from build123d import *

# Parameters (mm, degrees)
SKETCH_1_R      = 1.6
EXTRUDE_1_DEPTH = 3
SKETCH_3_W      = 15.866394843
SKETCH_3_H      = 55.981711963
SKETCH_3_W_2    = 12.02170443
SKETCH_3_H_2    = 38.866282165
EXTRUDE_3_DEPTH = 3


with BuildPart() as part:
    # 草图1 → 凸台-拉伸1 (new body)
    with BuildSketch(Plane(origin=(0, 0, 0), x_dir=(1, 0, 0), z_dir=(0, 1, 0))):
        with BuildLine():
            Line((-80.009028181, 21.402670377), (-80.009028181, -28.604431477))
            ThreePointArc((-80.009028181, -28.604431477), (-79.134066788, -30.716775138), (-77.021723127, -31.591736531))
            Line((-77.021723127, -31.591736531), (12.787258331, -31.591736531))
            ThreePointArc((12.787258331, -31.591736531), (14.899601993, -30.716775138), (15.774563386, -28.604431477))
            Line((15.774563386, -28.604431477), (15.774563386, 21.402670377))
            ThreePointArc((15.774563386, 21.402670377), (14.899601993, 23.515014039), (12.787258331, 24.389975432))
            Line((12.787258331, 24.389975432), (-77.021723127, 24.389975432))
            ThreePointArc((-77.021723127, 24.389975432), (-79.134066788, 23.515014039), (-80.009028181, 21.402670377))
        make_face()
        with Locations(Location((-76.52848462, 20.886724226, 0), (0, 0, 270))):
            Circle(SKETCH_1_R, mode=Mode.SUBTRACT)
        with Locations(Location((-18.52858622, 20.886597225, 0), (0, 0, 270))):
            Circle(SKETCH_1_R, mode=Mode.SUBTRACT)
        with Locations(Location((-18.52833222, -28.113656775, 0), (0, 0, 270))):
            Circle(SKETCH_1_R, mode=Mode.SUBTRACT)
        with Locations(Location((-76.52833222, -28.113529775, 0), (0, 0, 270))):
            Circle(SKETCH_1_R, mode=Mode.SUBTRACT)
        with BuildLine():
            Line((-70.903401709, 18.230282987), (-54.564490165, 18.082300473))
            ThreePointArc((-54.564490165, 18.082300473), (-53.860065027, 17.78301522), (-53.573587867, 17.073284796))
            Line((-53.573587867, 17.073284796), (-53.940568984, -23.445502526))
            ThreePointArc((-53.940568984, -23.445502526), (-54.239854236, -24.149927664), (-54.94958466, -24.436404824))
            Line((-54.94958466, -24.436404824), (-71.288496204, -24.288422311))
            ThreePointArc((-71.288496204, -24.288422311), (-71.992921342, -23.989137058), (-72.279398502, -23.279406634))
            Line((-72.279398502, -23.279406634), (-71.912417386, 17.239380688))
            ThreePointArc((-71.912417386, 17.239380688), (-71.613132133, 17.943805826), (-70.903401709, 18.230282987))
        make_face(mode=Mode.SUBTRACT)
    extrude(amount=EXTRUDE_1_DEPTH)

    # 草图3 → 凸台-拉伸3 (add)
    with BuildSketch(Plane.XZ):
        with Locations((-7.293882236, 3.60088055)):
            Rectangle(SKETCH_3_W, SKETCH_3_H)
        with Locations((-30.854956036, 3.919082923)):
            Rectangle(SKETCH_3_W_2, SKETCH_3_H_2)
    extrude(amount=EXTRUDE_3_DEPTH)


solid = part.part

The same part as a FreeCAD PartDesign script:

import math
import FreeCAD as App
import Part
import Sketcher

V = App.Vector
Q = App.Units.Quantity

doc = App.newDocument("Part")
body = doc.addObject("PartDesign::Body", "Body")

sketch1 = doc.addObject("Sketcher::SketchObject", "Sketch")
body.addObject(sketch1)
sketch1.AttachmentSupport = (doc.XZ_Plane, [""])
sketch1.MapMode = "FlatFace"
sketch1.addGeometry([
    Part.LineSegment(V(-80.009028, -21.40267, 0), V(-80.009028, 28.604431, 0)),
    Part.ArcOfCircle(Part.Circle(V(-77.021723, 28.604431, 0), V(0, 0, 1), 2.987305), math.radians(90), math.radians(180)),
    Part.LineSegment(V(-77.021723, 31.591737, 0), V(12.787258, 31.591737, 0)),
    Part.ArcOfCircle(Part.Circle(V(12.787258, 28.604431, 0), V(0, 0, 1), 2.987305), math.radians(0), math.radians(90)),
    Part.LineSegment(V(15.774563, 28.604431, 0), V(15.774563, -21.40267, 0)),
    Part.ArcOfCircle(Part.Circle(V(12.787258, -21.40267, 0), V(0, 0, 1), 2.987305), math.radians(-90), math.radians(0)),
    Part.LineSegment(V(12.787258, -24.389975, 0), V(-77.021723, -24.389975, 0)),
    Part.ArcOfCircle(Part.Circle(V(-77.021723, -21.40267, 0), V(0, 0, 1), 2.987305), math.radians(180), math.radians(270)),
    Part.Circle(V(-76.528332, 28.11353, 0), V(0, 0, 1), 1.6),
    Part.Circle(V(-18.528332, 28.113657, 0), V(0, 0, 1), 1.6),
    Part.ArcOfCircle(Part.Circle(V(-70.912458, -17.230324, 0), V(0, 0, 1), 1), math.radians(-179.481083), math.radians(-89.481083)),
    Part.LineSegment(V(-70.903402, -18.230283, 0), V(-54.56449, -18.0823, 0)),
    Part.ArcOfCircle(Part.Circle(V(-54.573547, -17.082341, 0), V(0, 0, 1), 1), math.radians(-89.481083), math.radians(0.518917)),
    Part.LineSegment(V(-53.573588, -17.073285, 0), V(-53.940569, 23.445503, 0)),
    Part.ArcOfCircle(Part.Circle(V(-54.940528, 23.436446, 0), V(0, 0, 1), 1), math.radians(0.518917), math.radians(90.518917)),
    Part.LineSegment(V(-54.949585, 24.436405, 0), V(-71.288496, 24.288422, 0)),
    Part.ArcOfCircle(Part.Circle(V(-71.27944, 23.288463, 0), V(0, 0, 1), 1), math.radians(90.518917), math.radians(180.518917)),
    Part.LineSegment(V(-72.279399, 23.279407, 0), V(-71.912417, -17.239381, 0)),
    Part.Circle(V(-76.528485, -20.886724, 0), V(0, 0, 1), 1.6),
    Part.Circle(V(-18.528586, -20.886597, 0), V(0, 0, 1), 1.6),
], False)
sketch1.addConstraint([
    Sketcher.Constraint("Coincident", 0, 2, 1, 2),
    Sketcher.Constraint("Coincident", 1, 1, 2, 1),
    Sketcher.Constraint("Coincident", 2, 2, 3, 2),
    Sketcher.Constraint("Coincident", 3, 1, 4, 1),
    Sketcher.Constraint("Coincident", 4, 2, 5, 2),
    Sketcher.Constraint("Coincident", 5, 1, 6, 1),
    Sketcher.Constraint("Coincident", 6, 2, 7, 2),
    Sketcher.Constraint("Coincident", 7, 1, 0, 1),
    Sketcher.Constraint("Coincident", 10, 2, 11, 1),
    Sketcher.Constraint("Coincident", 11, 2, 12, 1),
    Sketcher.Constraint("Coincident", 12, 2, 13, 1),
    Sketcher.Constraint("Coincident", 13, 2, 14, 1),
    Sketcher.Constraint("Coincident", 14, 2, 15, 1),
    Sketcher.Constraint("Coincident", 15, 2, 16, 1),
    Sketcher.Constraint("Coincident", 16, 2, 17, 1),
    Sketcher.Constraint("Coincident", 17, 2, 10, 1),
    Sketcher.Constraint("Vertical", 0),
    Sketcher.Constraint("Horizontal", 2),
    Sketcher.Constraint("Vertical", 4),
    Sketcher.Constraint("Horizontal", 6),
    Sketcher.Constraint("Radius", 10, Q("1 mm")),
    Sketcher.Constraint("Radius", 12, Q("1 mm")),
    Sketcher.Constraint("Radius", 14, Q("1 mm")),
    Sketcher.Constraint("Radius", 16, Q("1 mm")),
    Sketcher.Constraint("Diameter", 8, Q("3.2 mm")),
    Sketcher.Constraint("Diameter", 9, Q("3.2 mm")),
    Sketcher.Constraint("Diameter", 18, Q("3.2 mm")),
    Sketcher.Constraint("Diameter", 19, Q("3.2 mm")),
    Sketcher.Constraint("DistanceX", 8, 3, 9, 3, Q("58 mm")),
    Sketcher.Constraint("DistanceY", 0, 1, 0, 2, Q("50.007102 mm")),
    Sketcher.Constraint("DistanceY", 4, 2, 4, 1, Q("50.007102 mm")),
    Sketcher.Constraint("Radius", 1, Q("2.987305 mm")),
    Sketcher.Constraint("Radius", 3, Q("2.987305 mm")),
    Sketcher.Constraint("Radius", 5, Q("2.987305 mm")),
    Sketcher.Constraint("Radius", 7, Q("2.987305 mm")),
    Sketcher.Constraint("DistanceY", 12, 3, 9, 3, Q("45.195998 mm")),
    Sketcher.Constraint("DistanceY", 10, 2, 12, 2, Q("1.156998 mm")),
    Sketcher.Constraint("DistanceX", 2, 1, 2, 2, Q("89.808981 mm")),
    Sketcher.Constraint("DistanceX", 6, 2, 6, 1, Q("89.808981 mm")),
    Sketcher.Constraint("DistanceX", 10, 2, -1, 1, Q("70.903402 mm")),
    Sketcher.Constraint("DistanceY", 11, 2, -1, 1, Q("18.0823 mm")),
    Sketcher.Constraint("DistanceX", 16, 2, -1, 1, Q("72.279399 mm")),
    Sketcher.Constraint("DistanceY", 5, 3, 3, 3, Q("50.007102 mm")),
    Sketcher.Constraint("DistanceY", 8, 3, 1, 3, Q("0.490902 mm")),
    Sketcher.Constraint("DistanceY", 18, 3, 10, 3, Q("3.6564 mm")),
    Sketcher.Constraint("DistanceY", 8, 3, 0, 2, Q("0.490902 mm")),
    Sketcher.Constraint("DistanceX", 0, 2, 14, 3, Q("25.0685 mm")),
    Sketcher.Constraint("DistanceY", 5, 3, 3, 1, Q("50.007102 mm")),
    Sketcher.Constraint("Distance", 11, Q("16.339582 mm")),
    Sketcher.Constraint("Distance", 13, Q("40.520449 mm")),
    Sketcher.Constraint("Distance", 15, Q("16.339582 mm")),
    Sketcher.Constraint("Distance", 17, Q("40.520449 mm")),
    Sketcher.Constraint("DistanceY", -1, 1, 1, 3, Q("28.604431 mm")),
    Sketcher.Constraint("DistanceX", -1, 1, 3, 3, Q("12.787258 mm")),
    Sketcher.Constraint("DistanceX", 10, 3, -1, 1, Q("70.912458 mm")),
    Sketcher.Constraint("DistanceY", 12, 3, -1, 1, Q("17.082341 mm")),
    Sketcher.Constraint("DistanceX", 16, 3, -1, 1, Q("71.27944 mm")),
    Sketcher.Constraint("DistanceX", 0, 2, -1, 1, Q("80.009028 mm")),
    Sketcher.Constraint("DistanceX", -1, 1, 2, 2, Q("12.787258 mm")),
    Sketcher.Constraint("DistanceX", -1, 1, 5, 1, Q("12.787258 mm")),
    Sketcher.Constraint("DistanceX", 11, 2, -1, 1, Q("54.56449 mm")),
    Sketcher.Constraint("DistanceX", 13, 2, -1, 1, Q("53.940569 mm")),
    Sketcher.Constraint("DistanceY", 17, 2, -1, 1, Q("17.239381 mm")),
    Sketcher.Constraint("DistanceX", 1, 3, 8, 3, Q("0.493391 mm")),
    Sketcher.Constraint("DistanceX", 7, 3, 18, 3, Q("0.493239 mm")),
    Sketcher.Constraint("DistanceX", 12, 3, 19, 3, Q("36.044961 mm")),
    Sketcher.Constraint("DistanceY", 19, 3, 3, 1, Q("49.491029 mm")),
    Sketcher.Constraint("DistanceY", 14, 3, 14, 2, Q("0.999959 mm")),
])
pad1 = doc.addObject("PartDesign::Pad", "Pad")
body.addObject(pad1)
pad1.Profile = sketch1
pad1.Length = 3
pad1.Reversed = True

sketch2 = doc.addObject("Sketcher::SketchObject", "Sketch001")
body.addObject(sketch2)
sketch2.AttachmentSupport = (doc.XZ_Plane, [""])
sketch2.MapMode = "FlatFace"
sketch2.addGeometry([
    Part.LineSegment(V(-15, 32, 0), V(-15, -24, 0)),
    Part.LineSegment(V(-15, -24, 0), V(1, -24, 0)),
    Part.LineSegment(V(1, -24, 0), V(1, 32, 0)),
    Part.LineSegment(V(1, 32, 0), V(-15, 32, 0)),
    Part.LineSegment(V(-37, 23, 0), V(-37, -16, 0)),
    Part.LineSegment(V(-37, -16, 0), V(-25, -16, 0)),
    Part.LineSegment(V(-25, -16, 0), V(-25, 23, 0)),
    Part.LineSegment(V(-25, 23, 0), V(-37, 23, 0)),
], False)
sketch2.addConstraint([
    Sketcher.Constraint("Coincident", 0, 2, 1, 1),
    Sketcher.Constraint("Coincident", 1, 2, 2, 1),
    Sketcher.Constraint("Coincident", 2, 2, 3, 1),
    Sketcher.Constraint("Coincident", 3, 2, 0, 1),
    Sketcher.Constraint("Coincident", 4, 2, 5, 1),
    Sketcher.Constraint("Coincident", 5, 2, 6, 1),
    Sketcher.Constraint("Coincident", 6, 2, 7, 1),
    Sketcher.Constraint("Coincident", 7, 2, 4, 1),
    Sketcher.Constraint("Vertical", 0),
    Sketcher.Constraint("Horizontal", 1),
    Sketcher.Constraint("Vertical", 2),
    Sketcher.Constraint("Horizontal", 3),
    Sketcher.Constraint("Vertical", 4),
    Sketcher.Constraint("Horizontal", 5),
    Sketcher.Constraint("Vertical", 6),
    Sketcher.Constraint("Horizontal", 7),
    Sketcher.Constraint("DistanceY", 0, 2, 0, 1, Q("55.981712 mm")),
    Sketcher.Constraint("DistanceY", 0, 2, 6, 2, Q("47.742199 mm")),
    Sketcher.Constraint("DistanceX", 1, 1, 1, 2, Q("15.866395 mm")),
    Sketcher.Constraint("DistanceX", 5, 1, 5, 2, Q("12.021704 mm")),
    Sketcher.Constraint("DistanceY", 4, 2, 4, 1, Q("38.866282 mm")),
    Sketcher.Constraint("DistanceX", 0, 2, -1, 1, Q("15.22708 mm")),
    Sketcher.Constraint("DistanceX", 4, 2, -1, 1, Q("36.865808 mm")),
    Sketcher.Constraint("DistanceY", 4, 2, -1, 1, Q("15.514058 mm")),
])
pad2 = doc.addObject("PartDesign::Pad", "Pad001")
body.addObject(pad2)
pad2.Profile = sketch2
pad2.Length = 3

doc.recompute()
